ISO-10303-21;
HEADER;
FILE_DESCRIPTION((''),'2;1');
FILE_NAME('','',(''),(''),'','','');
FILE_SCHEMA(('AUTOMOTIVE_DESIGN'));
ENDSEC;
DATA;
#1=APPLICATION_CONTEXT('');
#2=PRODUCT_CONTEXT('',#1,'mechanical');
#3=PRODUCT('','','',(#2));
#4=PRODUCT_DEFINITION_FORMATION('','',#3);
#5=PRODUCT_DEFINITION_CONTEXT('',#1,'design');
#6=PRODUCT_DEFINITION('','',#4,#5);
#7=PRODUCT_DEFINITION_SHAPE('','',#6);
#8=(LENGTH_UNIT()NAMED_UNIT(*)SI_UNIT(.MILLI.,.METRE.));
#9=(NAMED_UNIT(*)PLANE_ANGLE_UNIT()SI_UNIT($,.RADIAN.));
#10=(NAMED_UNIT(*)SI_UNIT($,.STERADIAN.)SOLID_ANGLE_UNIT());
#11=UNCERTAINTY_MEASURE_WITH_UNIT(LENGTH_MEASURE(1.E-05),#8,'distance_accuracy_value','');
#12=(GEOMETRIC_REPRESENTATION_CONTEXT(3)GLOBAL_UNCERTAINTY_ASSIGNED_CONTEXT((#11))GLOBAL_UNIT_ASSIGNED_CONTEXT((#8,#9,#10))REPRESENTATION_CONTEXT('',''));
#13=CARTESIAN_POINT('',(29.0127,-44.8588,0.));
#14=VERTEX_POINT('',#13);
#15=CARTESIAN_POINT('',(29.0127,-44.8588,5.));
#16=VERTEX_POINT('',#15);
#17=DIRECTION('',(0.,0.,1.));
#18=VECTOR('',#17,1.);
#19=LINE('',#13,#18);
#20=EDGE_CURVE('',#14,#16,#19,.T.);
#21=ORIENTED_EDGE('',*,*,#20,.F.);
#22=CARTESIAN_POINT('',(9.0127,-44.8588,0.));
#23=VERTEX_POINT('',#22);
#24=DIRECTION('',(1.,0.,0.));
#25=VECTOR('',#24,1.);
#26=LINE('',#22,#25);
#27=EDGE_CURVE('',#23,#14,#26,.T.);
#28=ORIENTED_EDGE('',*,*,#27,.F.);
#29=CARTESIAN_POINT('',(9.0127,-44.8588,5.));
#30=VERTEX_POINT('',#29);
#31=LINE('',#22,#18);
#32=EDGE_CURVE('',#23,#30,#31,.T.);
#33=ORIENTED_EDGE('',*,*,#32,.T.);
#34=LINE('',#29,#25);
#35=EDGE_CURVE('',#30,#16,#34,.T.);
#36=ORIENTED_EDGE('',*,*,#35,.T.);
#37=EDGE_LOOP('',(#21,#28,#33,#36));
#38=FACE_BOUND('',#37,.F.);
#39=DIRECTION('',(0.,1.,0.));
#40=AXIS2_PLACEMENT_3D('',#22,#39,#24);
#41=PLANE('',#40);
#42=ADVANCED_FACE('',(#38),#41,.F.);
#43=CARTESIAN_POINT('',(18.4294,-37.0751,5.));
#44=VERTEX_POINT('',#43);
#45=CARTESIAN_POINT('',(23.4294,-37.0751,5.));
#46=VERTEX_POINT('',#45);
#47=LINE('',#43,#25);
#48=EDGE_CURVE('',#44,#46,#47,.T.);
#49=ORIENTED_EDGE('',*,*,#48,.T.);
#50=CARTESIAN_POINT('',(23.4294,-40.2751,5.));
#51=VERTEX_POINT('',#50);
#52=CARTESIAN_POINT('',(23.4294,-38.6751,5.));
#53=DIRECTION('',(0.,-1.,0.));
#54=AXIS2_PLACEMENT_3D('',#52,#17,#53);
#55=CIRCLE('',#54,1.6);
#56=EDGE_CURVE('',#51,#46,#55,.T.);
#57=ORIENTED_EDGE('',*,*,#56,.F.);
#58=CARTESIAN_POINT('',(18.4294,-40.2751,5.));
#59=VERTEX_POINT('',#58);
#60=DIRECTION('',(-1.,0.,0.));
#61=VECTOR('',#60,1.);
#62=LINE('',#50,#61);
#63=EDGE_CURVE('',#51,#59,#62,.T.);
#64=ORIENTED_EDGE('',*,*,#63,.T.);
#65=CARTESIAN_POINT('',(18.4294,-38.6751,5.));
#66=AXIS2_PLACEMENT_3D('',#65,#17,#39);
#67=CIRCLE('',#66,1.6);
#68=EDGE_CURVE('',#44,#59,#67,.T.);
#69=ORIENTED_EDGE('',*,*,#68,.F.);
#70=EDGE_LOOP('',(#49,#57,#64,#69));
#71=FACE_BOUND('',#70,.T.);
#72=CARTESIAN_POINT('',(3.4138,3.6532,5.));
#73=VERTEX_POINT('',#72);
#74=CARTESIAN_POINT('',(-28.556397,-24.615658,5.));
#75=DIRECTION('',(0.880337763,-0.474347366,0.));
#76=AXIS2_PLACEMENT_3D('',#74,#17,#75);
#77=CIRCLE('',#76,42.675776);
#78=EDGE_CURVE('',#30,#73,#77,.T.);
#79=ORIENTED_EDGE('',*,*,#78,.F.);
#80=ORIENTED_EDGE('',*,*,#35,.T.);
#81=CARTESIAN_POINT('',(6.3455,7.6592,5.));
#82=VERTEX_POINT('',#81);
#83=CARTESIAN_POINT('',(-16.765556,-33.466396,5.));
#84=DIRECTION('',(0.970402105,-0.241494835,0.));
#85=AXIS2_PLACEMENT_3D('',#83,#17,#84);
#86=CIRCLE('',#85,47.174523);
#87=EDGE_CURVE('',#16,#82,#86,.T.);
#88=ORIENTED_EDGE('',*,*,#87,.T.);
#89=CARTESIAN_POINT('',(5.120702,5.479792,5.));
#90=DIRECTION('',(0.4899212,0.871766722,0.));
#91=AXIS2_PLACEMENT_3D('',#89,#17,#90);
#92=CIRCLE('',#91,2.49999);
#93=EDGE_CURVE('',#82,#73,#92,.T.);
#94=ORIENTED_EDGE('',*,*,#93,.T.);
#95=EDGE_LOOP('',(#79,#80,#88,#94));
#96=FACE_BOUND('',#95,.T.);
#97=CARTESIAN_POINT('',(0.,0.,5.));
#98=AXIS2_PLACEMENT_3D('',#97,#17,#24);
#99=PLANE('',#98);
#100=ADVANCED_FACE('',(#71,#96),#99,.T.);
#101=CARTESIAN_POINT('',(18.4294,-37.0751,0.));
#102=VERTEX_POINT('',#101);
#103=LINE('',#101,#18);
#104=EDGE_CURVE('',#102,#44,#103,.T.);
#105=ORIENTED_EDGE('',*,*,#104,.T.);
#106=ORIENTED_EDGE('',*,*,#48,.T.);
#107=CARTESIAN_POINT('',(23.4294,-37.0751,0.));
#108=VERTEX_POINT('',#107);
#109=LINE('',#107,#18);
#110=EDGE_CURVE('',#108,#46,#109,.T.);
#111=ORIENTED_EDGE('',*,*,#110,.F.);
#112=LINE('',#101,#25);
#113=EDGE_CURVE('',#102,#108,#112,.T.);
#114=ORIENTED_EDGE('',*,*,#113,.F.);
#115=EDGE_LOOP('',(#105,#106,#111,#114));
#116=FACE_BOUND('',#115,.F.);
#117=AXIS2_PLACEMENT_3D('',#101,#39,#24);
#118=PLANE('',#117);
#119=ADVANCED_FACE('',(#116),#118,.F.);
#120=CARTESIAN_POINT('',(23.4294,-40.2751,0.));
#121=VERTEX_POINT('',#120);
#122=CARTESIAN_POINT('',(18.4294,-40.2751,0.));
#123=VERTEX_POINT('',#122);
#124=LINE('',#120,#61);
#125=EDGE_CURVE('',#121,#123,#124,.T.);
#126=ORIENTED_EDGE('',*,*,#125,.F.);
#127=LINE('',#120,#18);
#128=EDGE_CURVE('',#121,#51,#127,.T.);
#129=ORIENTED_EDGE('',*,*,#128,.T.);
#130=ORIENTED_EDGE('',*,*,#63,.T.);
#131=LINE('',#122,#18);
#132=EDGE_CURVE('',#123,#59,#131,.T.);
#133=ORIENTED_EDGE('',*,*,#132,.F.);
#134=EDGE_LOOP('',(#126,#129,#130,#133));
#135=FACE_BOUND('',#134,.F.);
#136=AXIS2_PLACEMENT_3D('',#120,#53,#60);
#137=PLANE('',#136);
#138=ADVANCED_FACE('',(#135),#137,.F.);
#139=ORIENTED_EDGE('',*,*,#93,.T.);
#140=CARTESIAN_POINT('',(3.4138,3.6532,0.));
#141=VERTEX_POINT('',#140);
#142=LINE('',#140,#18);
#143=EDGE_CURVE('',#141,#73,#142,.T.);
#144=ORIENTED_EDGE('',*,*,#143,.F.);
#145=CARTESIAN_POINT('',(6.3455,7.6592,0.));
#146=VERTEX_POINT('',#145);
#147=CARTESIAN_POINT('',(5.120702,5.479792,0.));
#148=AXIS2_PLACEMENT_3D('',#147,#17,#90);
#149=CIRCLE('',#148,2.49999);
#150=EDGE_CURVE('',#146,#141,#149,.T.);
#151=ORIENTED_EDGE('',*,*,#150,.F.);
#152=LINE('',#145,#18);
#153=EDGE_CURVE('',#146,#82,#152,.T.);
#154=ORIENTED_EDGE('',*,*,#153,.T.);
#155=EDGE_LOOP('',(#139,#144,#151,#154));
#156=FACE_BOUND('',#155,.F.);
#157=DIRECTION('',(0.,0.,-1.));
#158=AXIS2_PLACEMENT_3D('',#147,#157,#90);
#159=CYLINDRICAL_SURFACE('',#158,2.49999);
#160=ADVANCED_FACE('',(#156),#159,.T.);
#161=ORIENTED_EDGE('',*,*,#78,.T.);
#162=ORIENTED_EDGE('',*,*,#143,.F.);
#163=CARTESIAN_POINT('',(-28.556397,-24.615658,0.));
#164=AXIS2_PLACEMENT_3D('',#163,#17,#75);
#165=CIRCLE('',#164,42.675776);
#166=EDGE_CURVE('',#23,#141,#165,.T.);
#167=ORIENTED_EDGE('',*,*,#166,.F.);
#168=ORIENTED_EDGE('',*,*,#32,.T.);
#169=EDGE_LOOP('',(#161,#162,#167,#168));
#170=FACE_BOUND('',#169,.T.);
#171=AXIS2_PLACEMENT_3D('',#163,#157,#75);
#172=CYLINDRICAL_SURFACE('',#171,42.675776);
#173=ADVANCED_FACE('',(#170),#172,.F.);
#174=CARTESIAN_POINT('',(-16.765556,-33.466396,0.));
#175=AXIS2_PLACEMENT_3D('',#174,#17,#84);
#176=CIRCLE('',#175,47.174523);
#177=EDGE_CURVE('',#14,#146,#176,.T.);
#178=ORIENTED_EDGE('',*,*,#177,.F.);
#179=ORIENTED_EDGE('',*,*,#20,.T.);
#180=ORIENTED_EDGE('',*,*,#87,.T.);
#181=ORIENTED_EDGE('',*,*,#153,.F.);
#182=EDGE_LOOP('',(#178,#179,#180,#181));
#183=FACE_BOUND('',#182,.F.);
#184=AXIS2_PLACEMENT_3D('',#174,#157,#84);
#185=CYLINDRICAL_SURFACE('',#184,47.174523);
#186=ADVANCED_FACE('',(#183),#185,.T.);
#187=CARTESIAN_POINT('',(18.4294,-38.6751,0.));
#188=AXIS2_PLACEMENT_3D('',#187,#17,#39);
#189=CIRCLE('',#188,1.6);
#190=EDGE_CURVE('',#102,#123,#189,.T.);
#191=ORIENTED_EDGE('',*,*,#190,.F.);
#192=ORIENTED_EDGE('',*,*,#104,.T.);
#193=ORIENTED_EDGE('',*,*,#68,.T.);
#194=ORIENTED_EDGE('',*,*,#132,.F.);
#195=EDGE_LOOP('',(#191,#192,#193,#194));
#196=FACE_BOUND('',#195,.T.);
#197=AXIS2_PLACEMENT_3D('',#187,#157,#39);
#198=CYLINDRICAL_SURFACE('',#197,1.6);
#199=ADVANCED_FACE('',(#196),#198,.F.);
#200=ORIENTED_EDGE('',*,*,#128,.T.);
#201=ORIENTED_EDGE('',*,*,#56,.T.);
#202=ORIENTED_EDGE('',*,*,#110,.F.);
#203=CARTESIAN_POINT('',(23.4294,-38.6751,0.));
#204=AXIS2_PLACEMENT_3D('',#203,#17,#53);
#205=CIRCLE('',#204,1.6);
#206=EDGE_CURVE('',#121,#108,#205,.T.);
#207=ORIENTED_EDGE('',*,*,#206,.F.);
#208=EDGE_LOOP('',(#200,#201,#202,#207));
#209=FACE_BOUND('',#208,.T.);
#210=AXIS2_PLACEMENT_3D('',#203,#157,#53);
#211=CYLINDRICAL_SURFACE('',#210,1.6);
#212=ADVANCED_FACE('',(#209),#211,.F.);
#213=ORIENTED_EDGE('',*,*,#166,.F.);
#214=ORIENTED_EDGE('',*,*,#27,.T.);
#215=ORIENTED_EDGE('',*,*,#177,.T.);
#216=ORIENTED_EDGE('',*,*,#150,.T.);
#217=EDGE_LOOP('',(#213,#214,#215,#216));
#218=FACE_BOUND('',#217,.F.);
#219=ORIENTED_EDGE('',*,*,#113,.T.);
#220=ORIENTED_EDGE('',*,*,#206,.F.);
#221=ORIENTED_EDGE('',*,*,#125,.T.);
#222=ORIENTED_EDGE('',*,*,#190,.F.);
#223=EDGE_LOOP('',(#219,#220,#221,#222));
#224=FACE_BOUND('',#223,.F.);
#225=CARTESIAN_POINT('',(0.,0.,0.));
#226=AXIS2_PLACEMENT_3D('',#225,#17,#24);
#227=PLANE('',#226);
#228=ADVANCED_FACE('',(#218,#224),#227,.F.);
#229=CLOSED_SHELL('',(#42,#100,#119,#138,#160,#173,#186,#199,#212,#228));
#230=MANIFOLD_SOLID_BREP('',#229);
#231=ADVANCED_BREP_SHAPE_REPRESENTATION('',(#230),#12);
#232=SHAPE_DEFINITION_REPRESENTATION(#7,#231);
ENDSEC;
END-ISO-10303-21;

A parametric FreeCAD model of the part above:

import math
import FreeCAD as App
import Part
import Sketcher

V = App.Vector
Q = App.Units.Quantity

doc = App.newDocument("Part")
body = doc.addObject("PartDesign::Body", "Body")

# Sketch on XY plane
sketch1 = doc.addObject("Sketcher::SketchObject", "Sketch")
body.addObject(sketch1)
sketch1.AttachmentSupport = (doc.XY_Plane, [""])
sketch1.MapMode = "FlatFace"
sketch1.addGeometry([
    Part.ArcOfCircle(Part.Circle(V(-16.7656, -33.4664, 0), V(0, 0, 1), 47.174564), math.radians(-13.974766), math.radians(60.665588)),  # 0
    Part.ArcOfCircle(Part.Circle(V(5.1207, 5.4798, 0), V(0, 0, 1), 2.499984), math.radians(60.664469), math.radians(226.940196)),  # 1
    Part.ArcOfCircle(Part.Circle(V(-28.5567, -24.6156, 0), V(0, 0, 1), 42.67607), math.radians(-28.316741), math.radians(41.483601)),  # 2
    Part.LineSegment(V(9.0127, -44.8588, 0), V(29.0127, -44.8588, 0)),  # 3
    Part.ArcOfCircle(Part.Circle(V(18.4294, -38.6751, 0), V(0, 0, 1), 1.6), math.radians(90), math.radians(270)),  # 4
    Part.LineSegment(V(18.4294, -37.0751, 0), V(23.4294, -37.0751, 0)),  # 5
    Part.ArcOfCircle(Part.Circle(V(23.4294, -38.6751, 0), V(0, 0, 1), 1.6), math.radians(-90), math.radians(90)),  # 6
    Part.LineSegment(V(23.4294, -40.2751, 0), V(18.4294, -40.2751, 0)),  # 7
], False)
sketch1.addConstraint([
    Sketcher.Constraint("Tangent", 0, 2, 1, 1),
    Sketcher.Constraint("Coincident", 1, 2, 2, 2),
    Sketcher.Constraint("Coincident", 2, 1, 3, 1),
    Sketcher.Constraint("Coincident", 3, 2, 0, 1),
    Sketcher.Constraint("Tangent", 4, 1, 5, 1),
    Sketcher.Constraint("Tangent", 5, 2, 6, 2),
    Sketcher.Constraint("Tangent", 6, 1, 7, 1),
    Sketcher.Constraint("Tangent", 7, 2, 4, 2),
    Sketcher.Constraint("Horizontal", 3),
    Sketcher.Constraint("Horizontal", 5),
    Sketcher.Constraint("Horizontal", 7),
    Sketcher.Constraint("Radius", 1, Q("2.5 mm")),
    Sketcher.Constraint("Radius", 4, Q("1.6 mm")),
    Sketcher.Constraint("DistanceX", 3, 1, 3, 2, Q("20 mm")),
    Sketcher.Constraint("DistanceX", 5, 1, 5, 2, Q("5 mm")),
    Sketcher.Constraint("Radius", 2, Q("42.676 mm")),
    Sketcher.Constraint("Radius", 0, Q("47.1746 mm")),
    Sketcher.Constraint("DistanceY", 4, 3, -1, 1, Q("38.675 mm")),
    Sketcher.Constraint("DistanceX", 2, 3, 0, 3, Q("11.791 mm")),
    Sketcher.Constraint("DistanceX", 0, 3, 4, 3, Q("35.195 mm")),
    Sketcher.Constraint("DistanceY", 4, 3, 1, 3, Q("44.155 mm")),
    Sketcher.Constraint("DistanceX", 0, 3, 0, 2, Q("23.111 mm")),
    Sketcher.Constraint("DistanceX", 1, 2, 1, 3, Q("1.707 mm")),
    Sketcher.Constraint("DistanceX", 0, 3, -1, 1, Q("16.7656 mm")),
])
pad1 = doc.addObject("PartDesign::Pad", "Pad")
body.addObject(pad1)
pad1.Profile = sketch1
pad1.Length = 5

doc.recompute()
